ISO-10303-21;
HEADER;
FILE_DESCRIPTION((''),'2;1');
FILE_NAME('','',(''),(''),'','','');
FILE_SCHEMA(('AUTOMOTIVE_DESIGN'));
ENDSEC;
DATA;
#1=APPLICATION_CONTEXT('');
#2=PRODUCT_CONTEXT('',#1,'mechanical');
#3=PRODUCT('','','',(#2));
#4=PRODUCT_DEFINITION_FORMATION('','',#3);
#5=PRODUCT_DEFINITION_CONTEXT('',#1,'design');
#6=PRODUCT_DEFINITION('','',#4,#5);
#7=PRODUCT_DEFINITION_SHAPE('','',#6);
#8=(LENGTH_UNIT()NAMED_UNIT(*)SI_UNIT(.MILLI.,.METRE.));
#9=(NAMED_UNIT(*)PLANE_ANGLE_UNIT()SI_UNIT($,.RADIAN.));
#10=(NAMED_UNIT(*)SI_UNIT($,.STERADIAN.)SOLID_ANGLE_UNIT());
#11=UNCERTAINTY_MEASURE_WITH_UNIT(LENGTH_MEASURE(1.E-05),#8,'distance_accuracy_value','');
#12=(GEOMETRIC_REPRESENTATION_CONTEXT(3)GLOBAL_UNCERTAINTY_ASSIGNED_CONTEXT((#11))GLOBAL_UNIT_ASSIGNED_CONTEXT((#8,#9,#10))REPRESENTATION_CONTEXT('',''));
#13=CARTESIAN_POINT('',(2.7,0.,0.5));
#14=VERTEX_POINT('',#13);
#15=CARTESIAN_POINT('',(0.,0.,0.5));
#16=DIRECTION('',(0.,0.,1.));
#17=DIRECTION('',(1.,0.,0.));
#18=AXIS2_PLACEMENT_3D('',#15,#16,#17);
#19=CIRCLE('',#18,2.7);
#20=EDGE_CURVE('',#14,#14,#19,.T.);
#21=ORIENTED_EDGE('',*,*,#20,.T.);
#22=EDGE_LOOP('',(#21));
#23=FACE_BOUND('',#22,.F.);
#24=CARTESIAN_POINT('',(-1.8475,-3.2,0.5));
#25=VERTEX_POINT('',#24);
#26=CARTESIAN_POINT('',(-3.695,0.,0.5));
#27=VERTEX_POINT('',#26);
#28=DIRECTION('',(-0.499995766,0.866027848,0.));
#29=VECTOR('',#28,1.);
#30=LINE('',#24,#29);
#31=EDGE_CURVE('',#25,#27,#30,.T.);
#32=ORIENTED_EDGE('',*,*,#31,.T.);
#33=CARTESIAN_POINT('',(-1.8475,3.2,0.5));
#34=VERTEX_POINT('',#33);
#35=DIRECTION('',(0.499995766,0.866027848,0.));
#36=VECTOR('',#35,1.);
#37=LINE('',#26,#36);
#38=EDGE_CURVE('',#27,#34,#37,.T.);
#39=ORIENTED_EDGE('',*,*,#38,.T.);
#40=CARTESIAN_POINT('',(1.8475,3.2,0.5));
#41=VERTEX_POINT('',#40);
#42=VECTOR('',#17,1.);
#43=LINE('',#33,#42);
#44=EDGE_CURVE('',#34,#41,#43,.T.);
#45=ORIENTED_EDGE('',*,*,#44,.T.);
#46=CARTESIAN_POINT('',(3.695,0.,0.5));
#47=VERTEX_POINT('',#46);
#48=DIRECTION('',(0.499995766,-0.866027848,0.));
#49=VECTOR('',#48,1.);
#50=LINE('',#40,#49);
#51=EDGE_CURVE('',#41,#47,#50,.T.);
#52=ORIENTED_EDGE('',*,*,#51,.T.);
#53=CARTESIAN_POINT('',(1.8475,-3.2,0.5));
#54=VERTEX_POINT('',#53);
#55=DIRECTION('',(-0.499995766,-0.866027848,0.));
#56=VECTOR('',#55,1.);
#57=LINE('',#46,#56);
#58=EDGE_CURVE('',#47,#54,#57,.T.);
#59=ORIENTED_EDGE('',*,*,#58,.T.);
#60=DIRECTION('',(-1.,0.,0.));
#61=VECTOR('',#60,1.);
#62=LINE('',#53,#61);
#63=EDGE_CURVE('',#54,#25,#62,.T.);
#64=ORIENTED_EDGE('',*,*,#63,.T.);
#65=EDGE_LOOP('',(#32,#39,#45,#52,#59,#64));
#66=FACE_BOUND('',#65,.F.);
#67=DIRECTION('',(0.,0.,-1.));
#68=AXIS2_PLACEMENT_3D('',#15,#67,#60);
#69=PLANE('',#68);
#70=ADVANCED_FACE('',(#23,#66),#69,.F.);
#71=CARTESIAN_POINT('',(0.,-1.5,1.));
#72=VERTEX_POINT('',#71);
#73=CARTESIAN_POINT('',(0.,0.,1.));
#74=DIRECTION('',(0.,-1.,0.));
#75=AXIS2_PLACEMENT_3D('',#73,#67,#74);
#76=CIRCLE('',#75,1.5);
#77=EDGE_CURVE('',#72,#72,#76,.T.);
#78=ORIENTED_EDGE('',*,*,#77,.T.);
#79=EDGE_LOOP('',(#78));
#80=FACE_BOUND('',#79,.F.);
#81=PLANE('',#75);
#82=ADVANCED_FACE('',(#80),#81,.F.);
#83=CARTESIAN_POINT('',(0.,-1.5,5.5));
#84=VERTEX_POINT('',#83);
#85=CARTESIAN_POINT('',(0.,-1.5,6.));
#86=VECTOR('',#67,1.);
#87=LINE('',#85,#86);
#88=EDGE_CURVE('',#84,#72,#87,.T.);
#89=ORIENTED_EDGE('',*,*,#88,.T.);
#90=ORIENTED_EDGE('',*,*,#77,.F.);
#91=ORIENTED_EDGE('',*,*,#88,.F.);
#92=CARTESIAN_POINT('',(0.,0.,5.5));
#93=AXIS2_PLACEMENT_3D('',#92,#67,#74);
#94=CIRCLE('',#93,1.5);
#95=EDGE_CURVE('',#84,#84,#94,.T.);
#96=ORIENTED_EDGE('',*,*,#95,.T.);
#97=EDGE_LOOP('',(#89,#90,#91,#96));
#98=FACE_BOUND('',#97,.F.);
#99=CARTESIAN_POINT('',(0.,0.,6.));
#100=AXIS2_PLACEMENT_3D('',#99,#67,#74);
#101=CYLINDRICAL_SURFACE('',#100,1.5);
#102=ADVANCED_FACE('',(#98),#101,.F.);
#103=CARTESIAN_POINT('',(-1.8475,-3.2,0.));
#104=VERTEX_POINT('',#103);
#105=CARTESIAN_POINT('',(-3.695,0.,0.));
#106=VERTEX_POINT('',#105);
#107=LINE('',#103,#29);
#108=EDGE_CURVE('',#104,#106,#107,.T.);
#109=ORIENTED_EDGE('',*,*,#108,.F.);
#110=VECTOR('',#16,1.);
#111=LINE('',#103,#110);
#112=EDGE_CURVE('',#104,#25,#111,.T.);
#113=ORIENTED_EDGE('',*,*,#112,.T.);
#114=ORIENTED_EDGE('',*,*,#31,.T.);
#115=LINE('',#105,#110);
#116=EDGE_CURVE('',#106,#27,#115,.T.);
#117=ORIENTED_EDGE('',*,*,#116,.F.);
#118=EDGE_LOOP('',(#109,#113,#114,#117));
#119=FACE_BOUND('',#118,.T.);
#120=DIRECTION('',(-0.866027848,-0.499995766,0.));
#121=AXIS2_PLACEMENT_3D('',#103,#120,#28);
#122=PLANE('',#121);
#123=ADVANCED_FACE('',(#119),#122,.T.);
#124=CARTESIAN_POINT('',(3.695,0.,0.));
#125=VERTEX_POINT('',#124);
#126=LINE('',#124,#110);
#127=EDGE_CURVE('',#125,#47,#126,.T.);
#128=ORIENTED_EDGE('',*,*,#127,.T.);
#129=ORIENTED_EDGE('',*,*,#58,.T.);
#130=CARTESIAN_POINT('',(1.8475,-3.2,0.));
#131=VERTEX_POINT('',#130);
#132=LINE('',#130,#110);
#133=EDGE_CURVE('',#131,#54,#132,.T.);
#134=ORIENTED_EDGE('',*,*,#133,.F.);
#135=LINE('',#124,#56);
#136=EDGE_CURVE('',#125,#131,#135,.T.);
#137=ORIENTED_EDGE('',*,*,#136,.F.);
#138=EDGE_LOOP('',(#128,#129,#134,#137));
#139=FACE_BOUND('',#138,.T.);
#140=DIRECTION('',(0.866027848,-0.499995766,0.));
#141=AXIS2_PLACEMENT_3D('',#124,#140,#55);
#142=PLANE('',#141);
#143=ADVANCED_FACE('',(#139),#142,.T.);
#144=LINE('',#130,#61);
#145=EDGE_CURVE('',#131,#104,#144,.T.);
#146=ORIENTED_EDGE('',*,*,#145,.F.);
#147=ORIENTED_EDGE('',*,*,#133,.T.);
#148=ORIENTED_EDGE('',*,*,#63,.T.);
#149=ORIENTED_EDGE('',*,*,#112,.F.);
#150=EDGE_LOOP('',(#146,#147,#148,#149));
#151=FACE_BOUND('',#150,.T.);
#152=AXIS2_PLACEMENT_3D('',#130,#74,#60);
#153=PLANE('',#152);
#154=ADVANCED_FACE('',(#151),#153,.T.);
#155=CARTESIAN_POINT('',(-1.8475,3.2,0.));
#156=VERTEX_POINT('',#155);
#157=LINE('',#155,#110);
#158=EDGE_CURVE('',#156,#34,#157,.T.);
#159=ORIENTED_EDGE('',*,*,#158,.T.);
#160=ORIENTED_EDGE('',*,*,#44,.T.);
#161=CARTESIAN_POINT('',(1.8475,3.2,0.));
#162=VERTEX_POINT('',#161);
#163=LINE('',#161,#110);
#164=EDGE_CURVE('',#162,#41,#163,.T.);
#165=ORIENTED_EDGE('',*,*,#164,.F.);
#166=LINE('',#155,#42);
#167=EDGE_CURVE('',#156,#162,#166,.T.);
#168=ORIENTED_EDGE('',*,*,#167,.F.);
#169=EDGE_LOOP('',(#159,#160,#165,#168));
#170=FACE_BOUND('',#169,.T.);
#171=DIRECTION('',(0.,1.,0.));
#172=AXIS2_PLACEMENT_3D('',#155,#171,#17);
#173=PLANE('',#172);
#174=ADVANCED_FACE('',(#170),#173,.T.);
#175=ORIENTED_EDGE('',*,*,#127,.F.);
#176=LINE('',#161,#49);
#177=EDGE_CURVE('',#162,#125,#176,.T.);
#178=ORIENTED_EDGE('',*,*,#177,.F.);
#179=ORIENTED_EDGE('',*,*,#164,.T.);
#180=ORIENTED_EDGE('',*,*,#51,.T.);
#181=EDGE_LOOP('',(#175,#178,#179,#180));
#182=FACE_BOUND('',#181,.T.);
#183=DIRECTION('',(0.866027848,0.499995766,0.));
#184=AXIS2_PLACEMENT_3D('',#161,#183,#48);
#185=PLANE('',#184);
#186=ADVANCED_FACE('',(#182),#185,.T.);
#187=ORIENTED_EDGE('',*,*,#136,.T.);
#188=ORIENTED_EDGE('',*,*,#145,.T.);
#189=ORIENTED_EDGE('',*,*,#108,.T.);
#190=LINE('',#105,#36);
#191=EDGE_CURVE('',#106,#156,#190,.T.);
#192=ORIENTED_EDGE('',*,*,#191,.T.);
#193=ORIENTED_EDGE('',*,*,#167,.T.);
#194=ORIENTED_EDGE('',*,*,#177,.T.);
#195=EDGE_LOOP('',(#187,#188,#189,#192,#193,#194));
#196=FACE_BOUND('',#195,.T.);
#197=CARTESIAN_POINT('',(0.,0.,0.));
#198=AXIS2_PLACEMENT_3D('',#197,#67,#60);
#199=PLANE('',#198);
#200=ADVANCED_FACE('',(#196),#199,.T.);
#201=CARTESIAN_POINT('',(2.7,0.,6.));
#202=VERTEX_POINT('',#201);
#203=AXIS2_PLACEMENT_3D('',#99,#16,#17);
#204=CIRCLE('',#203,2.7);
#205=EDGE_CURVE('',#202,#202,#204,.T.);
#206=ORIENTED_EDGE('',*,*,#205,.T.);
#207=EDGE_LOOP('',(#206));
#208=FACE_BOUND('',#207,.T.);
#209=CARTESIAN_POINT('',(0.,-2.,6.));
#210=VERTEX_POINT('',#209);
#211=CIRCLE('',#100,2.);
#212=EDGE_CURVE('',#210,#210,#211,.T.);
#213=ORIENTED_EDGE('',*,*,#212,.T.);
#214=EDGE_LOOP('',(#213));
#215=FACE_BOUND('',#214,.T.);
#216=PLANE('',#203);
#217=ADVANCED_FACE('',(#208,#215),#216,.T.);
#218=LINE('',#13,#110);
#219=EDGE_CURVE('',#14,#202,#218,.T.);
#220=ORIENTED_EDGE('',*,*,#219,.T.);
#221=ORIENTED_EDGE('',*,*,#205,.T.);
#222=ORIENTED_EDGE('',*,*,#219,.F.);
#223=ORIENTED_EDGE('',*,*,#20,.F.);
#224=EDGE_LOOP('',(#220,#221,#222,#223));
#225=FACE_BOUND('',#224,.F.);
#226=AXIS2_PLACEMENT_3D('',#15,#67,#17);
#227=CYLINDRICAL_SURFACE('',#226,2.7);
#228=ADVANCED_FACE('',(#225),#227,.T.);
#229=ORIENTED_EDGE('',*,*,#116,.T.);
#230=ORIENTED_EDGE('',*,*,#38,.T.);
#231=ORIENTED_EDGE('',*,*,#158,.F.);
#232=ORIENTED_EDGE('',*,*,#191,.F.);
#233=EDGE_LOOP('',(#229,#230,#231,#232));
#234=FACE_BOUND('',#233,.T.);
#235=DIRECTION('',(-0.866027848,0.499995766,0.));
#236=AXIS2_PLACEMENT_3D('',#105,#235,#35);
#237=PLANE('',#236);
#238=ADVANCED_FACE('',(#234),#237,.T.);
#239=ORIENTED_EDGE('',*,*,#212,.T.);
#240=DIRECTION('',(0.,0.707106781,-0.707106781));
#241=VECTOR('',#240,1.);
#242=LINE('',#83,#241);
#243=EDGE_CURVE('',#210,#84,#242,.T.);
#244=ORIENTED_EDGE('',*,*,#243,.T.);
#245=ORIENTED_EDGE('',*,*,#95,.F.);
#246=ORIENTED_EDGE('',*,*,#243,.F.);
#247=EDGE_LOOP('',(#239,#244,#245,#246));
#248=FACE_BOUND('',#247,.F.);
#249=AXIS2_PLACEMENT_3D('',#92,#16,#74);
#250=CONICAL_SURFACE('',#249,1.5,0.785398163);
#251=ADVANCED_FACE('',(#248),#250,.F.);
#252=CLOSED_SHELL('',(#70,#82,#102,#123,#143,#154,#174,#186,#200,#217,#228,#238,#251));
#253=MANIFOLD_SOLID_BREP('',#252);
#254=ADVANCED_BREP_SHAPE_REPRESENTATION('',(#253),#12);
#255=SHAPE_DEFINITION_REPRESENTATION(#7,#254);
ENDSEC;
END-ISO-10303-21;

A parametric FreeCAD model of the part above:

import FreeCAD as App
import Part
import Sketcher
Q = App.Units.Quantity


def edges_at(feature, points):
    """Names of the edges that pass closest to the given points."""
    edges = feature.Shape.Edges
    near = lambda p: min(range(len(edges)), key=lambda i: edges[i].distToShape(Part.Vertex(*p))[0])
    return sorted({f"Edge{near(p) + 1}" for p in points})

doc = App.newDocument("Part")
params = doc.addObject("Spreadsheet::Sheet", "Params")
for row, (alias, value) in enumerate([
    ("pad1_length", "0.5 mm"),
    ("sketch2_diameter", "5.4 mm"),
    ("pad2_length", "5.5 mm"),
    ("sketch3_diameter", "3 mm"),
    ("hole_diameter", "3 mm"),
    ("hole_depth", "5 mm"),
    ("chamfer_size", "0.5 mm"),
], start=1):
    params.set(f"A{row}", alias)
    params.set(f"B{row}", "=" + value)
    params.setAlias(f"B{row}", alias)

body = doc.addObject("PartDesign::Body", "Body")

# Sketch on XY plane
sketch1 = doc.addObject("Sketcher::SketchObject", "Sketch")
body.addObject(sketch1)
sketch1.AttachmentSupport = (doc.XY_Plane, [""])
sketch1.MapMode = "FlatFace"
sketch1.addGeometry(Part.LineSegment(App.Vector(1.8475, 3.2, 0), App.Vector(-1.8475, 3.2, 0)), False)
sketch1.addGeometry(Part.LineSegment(App.Vector(-1.8475, 3.2, 0), App.Vector(-3.695, 0, 0)), False)
sketch1.addGeometry(Part.LineSegment(App.Vector(-3.695, 0, 0), App.Vector(-1.8475, -3.2, 0)), False)
sketch1.addGeometry(Part.LineSegment(App.Vector(-1.8475, -3.2, 0), App.Vector(1.8475, -3.2, 0)), False)
sketch1.addGeometry(Part.LineSegment(App.Vector(1.8475, -3.2, 0), App.Vector(3.695, 0, 0)), False)
sketch1.addGeometry(Part.LineSegment(App.Vector(3.695, 0, 0), App.Vector(1.8475, 3.2, 0)), False)
sketch1.addConstraint(Sketcher.Constraint("Coincident", 0, 2, 1, 1))
sketch1.addConstraint(Sketcher.Constraint("Coincident", 1, 2, 2, 1))
sketch1.addConstraint(Sketcher.Constraint("Coincident", 2, 2, 3, 1))
sketch1.addConstraint(Sketcher.Constraint("Coincident", 3, 2, 4, 1))
sketch1.addConstraint(Sketcher.Constraint("Coincident", 4, 2, 5, 1))
sketch1.addConstraint(Sketcher.Constraint("Coincident", 5, 2, 0, 1))
sketch1.addConstraint(Sketcher.Constraint("Horizontal", 0))
sketch1.addConstraint(Sketcher.Constraint("Horizontal", 3))
sketch1.addConstraint(Sketcher.Constraint("Symmetric", 0, 2, 3, 2, -1, 1))
sketch1.addConstraint(Sketcher.Constraint("Symmetric", 1, 2, 4, 2, -1, 1))
sketch1.addConstraint(Sketcher.Constraint("PointOnObject", 1, 2, -1))
sketch1.addConstraint(Sketcher.Constraint("Parallel", 2, 5))
sketch1.addConstraint(Sketcher.Constraint("Vertical", 0, 2, 2, 2))
sketch1.addConstraint(Sketcher.Constraint("Angle", 1, Q("-119.9997 deg")))
sketch1.addConstraint(Sketcher.Constraint("DistanceY", -1, 1, 0, 2, Q("3.2 mm")))
sketch1.addConstraint(Sketcher.Constraint("DistanceX", 0, 2, 0, 1, Q("3.695 mm")))
pad1 = doc.addObject("PartDesign::Pad", "Pad")
body.addObject(pad1)
pad1.Profile = sketch1
pad1.setExpression("Length", "Params.pad1_length")

# Sketch on XY plane
sketch2 = doc.addObject("Sketcher::SketchObject", "Sketch001")
body.addObject(sketch2)
sketch2.AttachmentSupport = (doc.XY_Plane, [""])
sketch2.MapMode = "FlatFace"
sketch2.AttachmentOffset = App.Placement(App.Vector(0, 0, 0.5), App.Rotation())
sketch2.addGeometry(Part.Circle(App.Vector(0, 0, 0), App.Vector(0, 0, 1), 2.7), False)
sketch2.addConstraint(Sketcher.Constraint("Coincident", 0, 3, -1, 1))
sketch2.addConstraint(Sketcher.Constraint("Diameter", 0, Q("5.4 mm")))
sketch2.setExpression("Constraints[1]", "Params.sketch2_diameter")
pad2 = doc.addObject("PartDesign::Pad", "Pad001")
body.addObject(pad2)
pad2.Profile = sketch2
pad2.setExpression("Length", "Params.pad2_length")

# Sketch on XY plane
sketch3 = doc.addObject("Sketcher::SketchObject", "Sketch002")
body.addObject(sketch3)
sketch3.AttachmentSupport = (doc.XY_Plane, [""])
sketch3.MapMode = "FlatFace"
sketch3.AttachmentOffset = App.Placement(App.Vector(0, 0, 6), App.Rotation())
sketch3.addGeometry(Part.Circle(App.Vector(0, 0, 0), App.Vector(0, 0, 1), 1.5), False)
sketch3.addConstraint(Sketcher.Constraint("Coincident", 0, 3, -1, 1))
sketch3.addConstraint(Sketcher.Constraint("Diameter", 0, Q("3 mm")))
sketch3.setExpression("Constraints[1]", "Params.sketch3_diameter")
doc.recompute()
hole = doc.addObject("PartDesign::Hole", "Hole")
body.addObject(hole)
hole.Profile = sketch3
hole.ThreadType = "None"
hole.setExpression("Diameter", "Params.hole_diameter")
hole.DepthType = "Dimension"
hole.setExpression("Depth", "Params.hole_depth")
hole.DrillPoint = "Flat"
doc.recompute()

chamfer = doc.addObject("PartDesign::Chamfer", "Chamfer")
body.addObject(chamfer)
chamfer.Base = (hole, edges_at(hole, [(0, 1.5, 6)]))
chamfer.setExpression("Size", "Params.chamfer_size")

doc.recompute()
